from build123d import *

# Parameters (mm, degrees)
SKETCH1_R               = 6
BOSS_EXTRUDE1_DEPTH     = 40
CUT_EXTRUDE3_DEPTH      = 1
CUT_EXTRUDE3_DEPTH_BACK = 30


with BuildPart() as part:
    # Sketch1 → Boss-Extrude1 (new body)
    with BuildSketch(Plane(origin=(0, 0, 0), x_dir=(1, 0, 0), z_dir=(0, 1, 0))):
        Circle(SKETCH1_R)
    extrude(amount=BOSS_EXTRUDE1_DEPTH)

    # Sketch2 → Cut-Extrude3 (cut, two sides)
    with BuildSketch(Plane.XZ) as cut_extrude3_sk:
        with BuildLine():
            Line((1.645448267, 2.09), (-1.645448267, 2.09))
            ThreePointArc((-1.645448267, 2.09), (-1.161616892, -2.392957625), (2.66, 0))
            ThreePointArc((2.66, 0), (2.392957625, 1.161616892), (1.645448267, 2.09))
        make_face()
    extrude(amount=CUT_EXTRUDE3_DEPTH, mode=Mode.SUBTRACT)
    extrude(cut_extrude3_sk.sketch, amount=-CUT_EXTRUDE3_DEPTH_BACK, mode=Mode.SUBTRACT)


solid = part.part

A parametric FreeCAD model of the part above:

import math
import FreeCAD as App
import Part
import Sketcher
Q = App.Units.Quantity

doc = App.newDocument("Part")
params = doc.addObject("Spreadsheet::Sheet", "Params")
for row, (alias, value) in enumerate([
    ("sketch1_diameter", "12 mm"),
    ("pad1_length", "40 mm"),
    ("sketch2_radius", "2.66 mm"),
    ("pocket1_length", "1 mm"),
    ("pocket1_length2", "30 mm"),
], start=1):
    params.set(f"A{row}", alias)
    params.set(f"B{row}", "=" + value)
    params.setAlias(f"B{row}", alias)

body = doc.addObject("PartDesign::Body", "Body")

# Sketch on XZ plane
sketch1 = body.newObject("Sketcher::SketchObject", "Sketch")
sketch1.AttachmentSupport = (doc.getObject("XZ_Plane"), [""])
sketch1.MapMode = "FlatFace"
sketch1.addGeometry(Part.Circle(App.Vector(0, 0, 0), App.Vector(0, 0, 1), 6), False)
sketch1.addConstraint([
    Sketcher.Constraint("Coincident", 0, 3, -1, 1),
    Sketcher.Constraint("Diameter", 0, Q("12 mm")),
])
sketch1.setExpression("Constraints[1]", "Params.sketch1_diameter")
pad1 = body.newObject("PartDesign::Pad", "Pad")
pad1.Profile = sketch1
pad1.setExpression("Length", "Params.pad1_length")
pad1.Reversed = True

# Sketch on XZ plane
sketch2 = body.newObject("Sketcher::SketchObject", "Sketch001")
sketch2.AttachmentSupport = (doc.getObject("XZ_Plane"), [""])
sketch2.MapMode = "FlatFace"
sketch2.addGeometry([
    Part.LineSegment(App.Vector(1.6, 2.1, 0), App.Vector(-1.6, 2.1, 0)),
    Part.ArcOfCircle(Part.Circle(App.Vector(0, 0, 0), App.Vector(0, 0, 1), 2.7), math.radians(128), math.radians(360)),
    Part.ArcOfCircle(Part.Circle(App.Vector(0, 0, 0), App.Vector(0, 0, 1), 2.7), math.radians(0), math.radians(52)),
], False)
sketch2.addConstraint([
    Sketcher.Constraint("Coincident", 0, 2, 1, 1),
    Sketcher.Constraint("Tangent", 1, 2, 2, 1),
    Sketcher.Constraint("Coincident", 2, 2, 0, 1),
    Sketcher.Constraint("Horizontal", 0),
    Sketcher.Constraint("Coincident", 1, 3, -1, 1),
    Sketcher.Constraint("Equal", 1, 2),
    Sketcher.Constraint("PointOnObject", 1, 2, -1),
    Sketcher.Constraint("Radius", 1, Q("2.66 mm")),
    Sketcher.Constraint("DistanceY", -1, 1, 0, 2, Q("2.09 mm")),
])
sketch2.setExpression("Constraints[7]", "Params.sketch2_radius")
pocket1 = body.newObject("PartDesign::Pocket", "Pocket")
pocket1.Profile = sketch2
pocket1.Type = "TwoLengths"
pocket1.setExpression("Length", "Params.pocket1_length")
pocket1.setExpression("Length2", "Params.pocket1_length2")
pocket1.Reversed = True

doc.recompute()
